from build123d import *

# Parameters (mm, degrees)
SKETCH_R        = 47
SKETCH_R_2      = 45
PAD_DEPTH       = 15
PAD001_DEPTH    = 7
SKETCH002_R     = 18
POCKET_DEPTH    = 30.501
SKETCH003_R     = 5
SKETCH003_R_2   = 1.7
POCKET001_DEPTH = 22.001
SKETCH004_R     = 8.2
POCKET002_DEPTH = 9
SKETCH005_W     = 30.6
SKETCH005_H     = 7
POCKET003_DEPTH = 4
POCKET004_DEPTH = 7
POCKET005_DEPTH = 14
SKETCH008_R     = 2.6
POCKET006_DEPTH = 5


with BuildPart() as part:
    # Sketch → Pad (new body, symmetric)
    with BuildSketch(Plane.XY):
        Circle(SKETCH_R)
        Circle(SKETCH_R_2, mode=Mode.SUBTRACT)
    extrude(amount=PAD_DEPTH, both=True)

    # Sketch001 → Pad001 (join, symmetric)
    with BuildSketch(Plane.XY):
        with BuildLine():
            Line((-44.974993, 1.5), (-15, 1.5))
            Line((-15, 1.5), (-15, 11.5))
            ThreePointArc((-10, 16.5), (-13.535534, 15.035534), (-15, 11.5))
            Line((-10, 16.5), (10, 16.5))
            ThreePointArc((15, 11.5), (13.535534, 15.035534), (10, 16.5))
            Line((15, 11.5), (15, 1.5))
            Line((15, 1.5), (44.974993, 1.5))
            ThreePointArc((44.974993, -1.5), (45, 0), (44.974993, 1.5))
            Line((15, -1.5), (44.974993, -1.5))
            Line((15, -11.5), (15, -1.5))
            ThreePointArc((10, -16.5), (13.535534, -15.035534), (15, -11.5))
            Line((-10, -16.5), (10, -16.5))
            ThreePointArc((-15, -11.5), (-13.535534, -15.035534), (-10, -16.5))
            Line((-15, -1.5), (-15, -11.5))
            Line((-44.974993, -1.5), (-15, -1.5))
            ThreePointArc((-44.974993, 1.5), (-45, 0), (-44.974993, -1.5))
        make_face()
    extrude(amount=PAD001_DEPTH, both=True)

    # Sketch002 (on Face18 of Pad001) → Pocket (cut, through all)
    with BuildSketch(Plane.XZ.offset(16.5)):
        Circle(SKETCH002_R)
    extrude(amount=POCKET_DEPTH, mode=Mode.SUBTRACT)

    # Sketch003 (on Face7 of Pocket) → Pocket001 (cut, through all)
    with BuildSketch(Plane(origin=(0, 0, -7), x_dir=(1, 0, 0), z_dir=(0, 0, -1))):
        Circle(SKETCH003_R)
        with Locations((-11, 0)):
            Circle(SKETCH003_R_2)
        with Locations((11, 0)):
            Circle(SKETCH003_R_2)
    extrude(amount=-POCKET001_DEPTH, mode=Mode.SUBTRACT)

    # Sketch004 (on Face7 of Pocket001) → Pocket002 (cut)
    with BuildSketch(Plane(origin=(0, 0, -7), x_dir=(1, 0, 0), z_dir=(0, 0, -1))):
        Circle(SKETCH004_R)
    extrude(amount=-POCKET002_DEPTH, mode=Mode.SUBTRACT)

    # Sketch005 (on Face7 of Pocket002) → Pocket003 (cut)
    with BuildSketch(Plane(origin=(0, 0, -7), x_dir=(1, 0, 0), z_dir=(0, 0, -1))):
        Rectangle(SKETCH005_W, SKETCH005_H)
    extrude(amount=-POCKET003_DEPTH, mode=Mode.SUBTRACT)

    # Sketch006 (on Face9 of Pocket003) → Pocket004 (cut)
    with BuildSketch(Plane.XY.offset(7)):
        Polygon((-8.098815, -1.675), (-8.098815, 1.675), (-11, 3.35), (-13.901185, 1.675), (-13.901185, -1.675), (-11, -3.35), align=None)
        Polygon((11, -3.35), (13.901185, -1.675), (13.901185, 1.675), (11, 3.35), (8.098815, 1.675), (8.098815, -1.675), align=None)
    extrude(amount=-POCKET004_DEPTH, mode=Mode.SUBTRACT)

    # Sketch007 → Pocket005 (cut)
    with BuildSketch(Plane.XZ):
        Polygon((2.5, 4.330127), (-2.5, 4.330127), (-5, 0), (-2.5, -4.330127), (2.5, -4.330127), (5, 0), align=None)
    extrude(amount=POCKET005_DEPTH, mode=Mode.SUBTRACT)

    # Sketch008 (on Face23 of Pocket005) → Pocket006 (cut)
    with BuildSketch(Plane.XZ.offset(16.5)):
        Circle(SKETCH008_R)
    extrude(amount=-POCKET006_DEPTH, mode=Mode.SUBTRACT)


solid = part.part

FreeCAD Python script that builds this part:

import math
import FreeCAD as App
import Part
import Sketcher
Q = App.Units.Quantity

doc = App.newDocument("Part")
params = doc.addObject("Spreadsheet::Sheet", "Params")
for row, (alias, value) in enumerate([
    ("sketch1_diameter", "94 mm"),
    ("sketch1_diameter2", "90 mm"),
    ("pad1_length", "30 mm"),
    ("sketch2_radius", "5 mm"),
    ("sketch2_width", "20 mm"),
    ("sketch2_height", "10 mm"),
    ("pad2_length", "14 mm"),
    ("sketch3_diameter", "36 mm"),
    ("sketch4_diameter", "10 mm"),
    ("sketch4_diameter2", "3.4 mm"),
    ("sketch5_diameter", "16.4 mm"),
    ("pocket3_length", "9 mm"),
    ("sketch6_height", "7 mm"),
    ("sketch6_width", "30.6 mm"),
    ("pocket4_length", "4 mm"),
    ("sketch7_height", "3.35 mm"),
    ("pocket5_length", "7 mm"),
    ("sketch8_width", "5 mm"),
    ("sketch8_length", "5 mm"),
    ("pocket6_length", "14 mm"),
    ("sketch9_diameter", "5.2 mm"),
    ("pocket7_length", "5 mm"),
], start=1):
    params.set(f"A{row}", alias)
    params.set(f"B{row}", "=" + value)
    params.setAlias(f"B{row}", alias)

body = doc.addObject("PartDesign::Body", "Body")

# Sketch on XY plane
sketch1 = body.newObject("Sketcher::SketchObject", "Sketch")
sketch1.AttachmentSupport = (doc.getObject("XY_Plane"), [""])
sketch1.MapMode = "FlatFace"
sketch1.addGeometry([
    Part.Circle(App.Vector(0, 0, 0), App.Vector(0, 0, 1), 47),
    Part.Circle(App.Vector(0, 0, 0), App.Vector(0, 0, 1), 45),
], False)
sketch1.addConstraint([
    Sketcher.Constraint("Coincident", 0, 3, -1, 1),
    Sketcher.Constraint("Coincident", 1, 3, -1, 1),
    Sketcher.Constraint("Diameter", 0, Q("94 mm")),
    Sketcher.Constraint("Diameter", 1, Q("90 mm")),
])
sketch1.setExpression("Constraints[2]", "Params.sketch1_diameter")
sketch1.setExpression("Constraints[3]", "Params.sketch1_diameter2")
pad1 = body.newObject("PartDesign::Pad", "Pad")
pad1.Profile = sketch1
pad1.setExpression("Length", "Params.pad1_length")
pad1.Midplane = True

# Sketch on XY plane
sketch2 = body.newObject("Sketcher::SketchObject", "Sketch001")
sketch2.AttachmentSupport = (doc.getObject("XY_Plane"), [""])
sketch2.MapMode = "FlatFace"
sketch2.addGeometry([
    Part.LineSegment(App.Vector(-15, 1.5, 0), App.Vector(-44.974993, 1.5, 0)),  # 0
    Part.ArcOfCircle(Part.Circle(App.Vector(-0.000093, 0, 0), App.Vector(0, 0, 1), 44.999907), math.radians(178.089783), math.radians(181.910217)),  # 1
    Part.LineSegment(App.Vector(-44.974993, -1.5, 0), App.Vector(-15, -1.5, 0)),  # 2
    Part.LineSegment(App.Vector(-15, -1.5, 0), App.Vector(-15, -11.5, 0)),  # 3
    Part.ArcOfCircle(Part.Circle(App.Vector(-10, -11.5, 0), App.Vector(0, 0, 1), 5), math.radians(179.999996), math.radians(270.000004)),  # 4
    Part.LineSegment(App.Vector(-10, -16.5, 0), App.Vector(10, -16.5, 0)),  # 5
    Part.ArcOfCircle(Part.Circle(App.Vector(10, -11.5, 0), App.Vector(0, 0, 1), 5), math.radians(-90.000004), math.radians(0.000004)),  # 6
    Part.LineSegment(App.Vector(15, -11.5, 0), App.Vector(15, -1.5, 0)),  # 7
    Part.LineSegment(App.Vector(15, -1.5, 0), App.Vector(44.974993, -1.5, 0)),  # 8
    Part.ArcOfCircle(Part.Circle(App.Vector(0.000093, 0, 0), App.Vector(0, 0, 1), 44.999907), math.radians(-1.910217), math.radians(1.910217)),  # 9
    Part.LineSegment(App.Vector(44.974993, 1.5, 0), App.Vector(15, 1.5, 0)),  # 10
    Part.LineSegment(App.Vector(15, 1.5, 0), App.Vector(15, 11.5, 0)),  # 11
    Part.ArcOfCircle(Part.Circle(App.Vector(10, 11.5, 0), App.Vector(0, 0, 1), 5), math.radians(-0.000004), math.radians(90.000004)),  # 12
    Part.LineSegment(App.Vector(10, 16.5, 0), App.Vector(-10, 16.5, 0)),  # 13
    Part.ArcOfCircle(Part.Circle(App.Vector(-10, 11.5, 0), App.Vector(0, 0, 1), 5), math.radians(89.999996), math.radians(180.000004)),  # 14
    Part.LineSegment(App.Vector(-15, 11.5, 0), App.Vector(-15, 1.5, 0)),  # 15
], False)
sketch2.addConstraint([
    Sketcher.Constraint("Coincident", 0, 2, 1, 1),
    Sketcher.Constraint("Coincident", 1, 2, 2, 1),
    Sketcher.Constraint("Coincident", 2, 2, 3, 1),
    Sketcher.Constraint("Tangent", 3, 2, 4, 1),
    Sketcher.Constraint("Tangent", 4, 2, 5, 1),
    Sketcher.Constraint("Tangent", 5, 2, 6, 1),
    Sketcher.Constraint("Tangent", 6, 2, 7, 1),
    Sketcher.Constraint("Coincident", 7, 2, 8, 1),
    Sketcher.Constraint("Coincident", 8, 2, 9, 1),
    Sketcher.Constraint("Coincident", 9, 2, 10, 1),
    Sketcher.Constraint("Coincident", 10, 2, 11, 1),
    Sketcher.Constraint("Tangent", 11, 2, 12, 1),
    Sketcher.Constraint("Tangent", 12, 2, 13, 1),
    Sketcher.Constraint("Tangent", 13, 2, 14, 1),
    Sketcher.Constraint("Tangent", 14, 2, 15, 1),
    Sketcher.Constraint("Coincident", 15, 2, 0, 1),
    Sketcher.Constraint("Horizontal", 0),
    Sketcher.Constraint("Horizontal", 2),
    Sketcher.Constraint("Vertical", 3),
    Sketcher.Constraint("Horizontal", 5),
    Sketcher.Constraint("Vertical", 7),
    Sketcher.Constraint("Horizontal", 8),
    Sketcher.Constraint("Horizontal", 10),
    Sketcher.Constraint("Vertical", 11),
    Sketcher.Constraint("Horizontal", 13),
    Sketcher.Constraint("Vertical", 15),
    Sketcher.Constraint("Equal", 4, 6),
    Sketcher.Constraint("Equal", 1, 9),
    Sketcher.Constraint("Equal", 6, 12),
    Sketcher.Constraint("Equal", 12, 14),
    Sketcher.Constraint("Symmetric", 1, 3, 9, 3, -1, 1),
    Sketcher.Constraint("Symmetric", 4, 3, 12, 3, -1, 1),
    Sketcher.Constraint("Symmetric", 7, 2, 15, 2, -1, 1),
    Sketcher.Constraint("Symmetric", 2, 2, 7, 2, -2),
    Sketcher.Constraint("Symmetric", 0, 2, 9, 2, -2),
    Sketcher.Constraint("Radius", 4, Q("5 mm")),
    Sketcher.Constraint("DistanceX", 5, 1, 5, 2, Q("20 mm")),
    Sketcher.Constraint("DistanceY", 3, 2, 3, 1, Q("10 mm")),
    Sketcher.Constraint("DistanceY", 6, 3, 12, 3, Q("23.000001 mm")),
    Sketcher.Constraint("Radius", 1, Q("44.999907 mm")),
    Sketcher.Constraint("DistanceX", 0, 2, 0, 1, Q("29.974993 mm")),
])
sketch2.setExpression("Constraints[35]", "Params.sketch2_radius")
sketch2.setExpression("Constraints[36]", "Params.sketch2_width")
sketch2.setExpression("Constraints[37]", "Params.sketch2_height")
pad2 = body.newObject("PartDesign::Pad", "Pad001")
pad2.Profile = sketch2
pad2.setExpression("Length", "Params.pad2_length")
pad2.Midplane = True

# Sketch on XZ plane
sketch3 = body.newObject("Sketcher::SketchObject", "Sketch002")
sketch3.AttachmentSupport = (doc.getObject("XZ_Plane"), [""])
sketch3.MapMode = "FlatFace"
sketch3.AttachmentOffset = App.Placement(App.Vector(0, 0, 16.5), App.Rotation())
sketch3.addGeometry(Part.Circle(App.Vector(0, 0, 0), App.Vector(0, 0, 1), 18), False)
sketch3.addConstraint([
    Sketcher.Constraint("Coincident", 0, 3, -1, 1),
    Sketcher.Constraint("Diameter", 0, Q("36 mm")),
])
sketch3.setExpression("Constraints[1]", "Params.sketch3_diameter")
pocket1 = body.newObject("PartDesign::Pocket", "Pocket")
pocket1.Profile = sketch3
pocket1.Type = "ThroughAll"
pocket1.Reversed = True

# Sketch on XY plane
sketch4 = body.newObject("Sketcher::SketchObject", "Sketch003")
sketch4.AttachmentSupport = (doc.getObject("XY_Plane"), [""])
sketch4.MapMode = "FlatFace"
sketch4.AttachmentOffset = App.Placement(App.Vector(0, 0, -7), App.Rotation())
sketch4.addGeometry([
    Part.Circle(App.Vector(0, 0, 0), App.Vector(0, 0, 1), 5),
    Part.Circle(App.Vector(-11, 0, 0), App.Vector(0, 0, 1), 1.7),
    Part.Circle(App.Vector(11, 0, 0), App.Vector(0, 0, 1), 1.7),
], False)
sketch4.addConstraint([
    Sketcher.Constraint("Coincident", 0, 3, -1, 1),
    Sketcher.Constraint("Equal", 1, 2),
    Sketcher.Constraint("Symmetric", 1, 3, 2, 3, -1, 1),
    Sketcher.Constraint("PointOnObject", 1, 3, -1),
    Sketcher.Constraint("Diameter", 0, Q("10 mm")),
    Sketcher.Constraint("Diameter", 1, Q("3.4 mm")),
    Sketcher.Constraint("DistanceX", 1, 3, -1, 1, Q("11 mm")),
])
sketch4.setExpression("Constraints[4]", "Params.sketch4_diameter")
sketch4.setExpression("Constraints[5]", "Params.sketch4_diameter2")
pocket2 = body.newObject("PartDesign::Pocket", "Pocket001")
pocket2.Profile = sketch4
pocket2.Type = "ThroughAll"
pocket2.Reversed = True

# Sketch on XY plane
sketch5 = body.newObject("Sketcher::SketchObject", "Sketch004")
sketch5.AttachmentSupport = (doc.getObject("XY_Plane"), [""])
sketch5.MapMode = "FlatFace"
sketch5.AttachmentOffset = App.Placement(App.Vector(0, 0, -7), App.Rotation())
sketch5.addGeometry(Part.Circle(App.Vector(0, 0, 0), App.Vector(0, 0, 1), 8), False)
sketch5.addConstraint([
    Sketcher.Constraint("Coincident", 0, 3, -1, 1),
    Sketcher.Constraint("Diameter", 0, Q("16.4 mm")),
])
sketch5.setExpression("Constraints[1]", "Params.sketch5_diameter")
pocket3 = body.newObject("PartDesign::Pocket", "Pocket002")
pocket3.Profile = sketch5
pocket3.setExpression("Length", "Params.pocket3_length")
pocket3.Reversed = True

# Sketch on XY plane
sketch6 = body.newObject("Sketcher::SketchObject", "Sketch005")
sketch6.AttachmentSupport = (doc.getObject("XY_Plane"), [""])
sketch6.MapMode = "FlatFace"
sketch6.AttachmentOffset = App.Placement(App.Vector(0, 0, -7), App.Rotation())
sketch6.addGeometry([
    Part.LineSegment(App.Vector(-15, -4, 0), App.Vector(-15, 4, 0)),
    Part.LineSegment(App.Vector(-15, 4, 0), App.Vector(15, 4, 0)),
    Part.LineSegment(App.Vector(15, 4, 0), App.Vector(15, -4, 0)),
    Part.LineSegment(App.Vector(15, -4, 0), App.Vector(-15, -4, 0)),
], False)
sketch6.addConstraint([
    Sketcher.Constraint("Coincident", 0, 2, 1, 1),
    Sketcher.Constraint("Coincident", 1, 2, 2, 1),
    Sketcher.Constraint("Coincident", 2, 2, 3, 1),
    Sketcher.Constraint("Coincident", 3, 2, 0, 1),
    Sketcher.Constraint("Vertical", 0),
    Sketcher.Constraint("Horizontal", 1),
    Sketcher.Constraint("Vertical", 2),
    Sketcher.Constraint("Horizontal", 3),
    Sketcher.Constraint("Symmetric", 0, 2, 2, 2, -1, 1),
    Sketcher.Constraint("DistanceY", 0, 1, 0, 2, Q("7 mm")),
    Sketcher.Constraint("DistanceX", 1, 1, 1, 2, Q("30.6 mm")),
])
sketch6.setExpression("Constraints[9]", "Params.sketch6_height")
sketch6.setExpression("Constraints[10]", "Params.sketch6_width")
pocket4 = body.newObject("PartDesign::Pocket", "Pocket003")
pocket4.Profile = sketch6
pocket4.setExpression("Length", "Params.pocket4_length")
pocket4.Reversed = True

# Sketch on XY plane
sketch7 = body.newObject("Sketcher::SketchObject", "Sketch006")
sketch7.AttachmentSupport = (doc.getObject("XY_Plane"), [""])
sketch7.MapMode = "FlatFace"
sketch7.AttachmentOffset = App.Placement(App.Vector(0, 0, 7), App.Rotation())
sketch7.addGeometry([
    Part.LineSegment(App.Vector(-8.1, -1.7, 0), App.Vector(-8.1, 1.7, 0)),  # 0
    Part.LineSegment(App.Vector(-8.1, 1.7, 0), App.Vector(-11, 3.4, 0)),  # 1
    Part.LineSegment(App.Vector(-11, 3.4, 0), App.Vector(-13.9, 1.7, 0)),  # 2
    Part.LineSegment(App.Vector(-13.9, 1.7, 0), App.Vector(-13.9, -1.7, 0)),  # 3
    Part.LineSegment(App.Vector(-13.9, -1.7, 0), App.Vector(-11, -3.4, 0)),  # 4
    Part.LineSegment(App.Vector(-11, -3.4, 0), App.Vector(-8.1, -1.7, 0)),  # 5
    Part.LineSegment(App.Vector(11, -3.4, 0), App.Vector(13.9, -1.7, 0)),  # 6
    Part.LineSegment(App.Vector(13.9, -1.7, 0), App.Vector(13.9, 1.7, 0)),  # 7
    Part.LineSegment(App.Vector(13.9, 1.7, 0), App.Vector(11, 3.4, 0)),  # 8
    Part.LineSegment(App.Vector(11, 3.4, 0), App.Vector(8.1, 1.7, 0)),  # 9
    Part.LineSegment(App.Vector(8.1, 1.7, 0), App.Vector(8.1, -1.7, 0)),  # 10
    Part.LineSegment(App.Vector(8.1, -1.7, 0), App.Vector(11, -3.4, 0)),  # 11
], False)
sketch7.addConstraint([
    Sketcher.Constraint("Coincident", 0, 2, 1, 1),
    Sketcher.Constraint("Coincident", 1, 2, 2, 1),
    Sketcher.Constraint("Coincident", 2, 2, 3, 1),
    Sketcher.Constraint("Coincident", 3, 2, 4, 1),
    Sketcher.Constraint("Coincident", 4, 2, 5, 1),
    Sketcher.Constraint("Coincident", 5, 2, 0, 1),
    Sketcher.Constraint("Coincident", 6, 2, 7, 1),
    Sketcher.Constraint("Coincident", 7, 2, 8, 1),
    Sketcher.Constraint("Coincident", 8, 2, 9, 1),
    Sketcher.Constraint("Coincident", 9, 2, 10, 1),
    Sketcher.Constraint("Coincident", 10, 2, 11, 1),
    Sketcher.Constraint("Coincident", 11, 2, 6, 1),
    Sketcher.Constraint("Vertical", 0),
    Sketcher.Constraint("Vertical", 3),
    Sketcher.Constraint("Vertical", 7),
    Sketcher.Constraint("Vertical", 10),
    Sketcher.Constraint("Symmetric", 2, 2, 6, 2, -1, 1),
    Sketcher.Constraint("Symmetric", 4, 2, 8, 2, -1, 1),
    Sketcher.Constraint("Symmetric", 5, 2, 9, 2, -1, 1),
    Sketcher.Constraint("Symmetric", 1, 2, 11, 2, -1, 1),
    Sketcher.Constraint("Symmetric", 1, 2, 8, 2, -2),
    Sketcher.Constraint("Parallel", 1, 4),
    Sketcher.Constraint("Parallel", 2, 5),
    Sketcher.Constraint("Parallel", 4, 8),
    Sketcher.Constraint("Parallel", 8, 11),
    Sketcher.Constraint("Horizontal", 0, 2, 2, 2),
    Sketcher.Constraint("Horizontal", 3, 2, 5, 2),
    Sketcher.Constraint("Angle", 1, Q("149.999999 deg")),
    Sketcher.Constraint("DistanceX", 1, 2, -1, 1, Q("11 mm")),
    Sketcher.Constraint("DistanceY", 0, 1, 0, 2, Q("3.35 mm")),
    Sketcher.Constraint("DistanceY", 4, 2, 1, 2, Q("6.7 mm")),
])
sketch7.setExpression("Constraints[29]", "Params.sketch7_height")
pocket5 = body.newObject("PartDesign::Pocket", "Pocket004")
pocket5.Profile = sketch7
pocket5.setExpression("Length", "Params.pocket5_length")

# Sketch on XZ plane
sketch8 = body.newObject("Sketcher::SketchObject", "Sketch007")
sketch8.AttachmentSupport = (doc.getObject("XZ_Plane"), [""])
sketch8.MapMode = "FlatFace"
sketch8.addGeometry([
    Part.LineSegment(App.Vector(2.5, 4.3, 0), App.Vector(-2.5, 4.3, 0)),  # 0
    Part.LineSegment(App.Vector(-2.5, 4.3, 0), App.Vector(-5, 0, 0)),  # 1
    Part.LineSegment(App.Vector(-5, 0, 0), App.Vector(-2.5, -4.3, 0)),  # 2
    Part.LineSegment(App.Vector(-2.5, -4.3, 0), App.Vector(2.5, -4.3, 0)),  # 3
    Part.LineSegment(App.Vector(2.5, -4.3, 0), App.Vector(5, 0, 0)),  # 4
    Part.LineSegment(App.Vector(5, 0, 0), App.Vector(2.5, 4.3, 0)),  # 5
], False)
sketch8.addConstraint([
    Sketcher.Constraint("Coincident", 0, 2, 1, 1),
    Sketcher.Constraint("Coincident", 1, 2, 2, 1),
    Sketcher.Constraint("Coincident", 2, 2, 3, 1),
    Sketcher.Constraint("Coincident", 3, 2, 4, 1),
    Sketcher.Constraint("Coincident", 4, 2, 5, 1),
    Sketcher.Constraint("Coincident", 5, 2, 0, 1),
    Sketcher.Constraint("Horizontal", 0),
    Sketcher.Constraint("Horizontal", 3),
    Sketcher.Constraint("Symmetric", 0, 2, 3, 2, -1, 1),
    Sketcher.Constraint("Symmetric", 1, 2, 4, 2, -1, 1),
    Sketcher.Constraint("PointOnObject", 1, 2, -1),
    Sketcher.Constraint("Parallel", 2, 5),
    Sketcher.Constraint("Vertical", 0, 2, 2, 2),
    Sketcher.Constraint("DistanceX", 0, 2, 0, 1, Q("5 mm")),
    Sketcher.Constraint("Angle", 1, Q("-120 deg")),
    Sketcher.Constraint("Distance", 1, Q("5 mm")),
])
sketch8.setExpression("Constraints[13]", "Params.sketch8_width")
sketch8.setExpression("Constraints[15]", "Params.sketch8_length")
pocket6 = body.newObject("PartDesign::Pocket", "Pocket005")
pocket6.Profile = sketch8
pocket6.setExpression("Length", "Params.pocket6_length")
pocket6.Reversed = True

# Sketch on XZ plane
sketch9 = body.newObject("Sketcher::SketchObject", "Sketch008")
sketch9.AttachmentSupport = (doc.getObject("XZ_Plane"), [""])
sketch9.MapMode = "FlatFace"
sketch9.AttachmentOffset = App.Placement(App.Vector(0, 0, 16.5), App.Rotation())
sketch9.addGeometry(Part.Circle(App.Vector(0, 0, 0), App.Vector(0, 0, 1), 2.6), False)
sketch9.addConstraint([
    Sketcher.Constraint("Coincident", 0, 3, -1, 1),
    Sketcher.Constraint("Diameter", 0, Q("5.2 mm")),
])
sketch9.setExpression("Constraints[1]", "Params.sketch9_diameter")
pocket7 = body.newObject("PartDesign::Pocket", "Pocket006")
pocket7.Profile = sketch9
pocket7.setExpression("Length", "Params.pocket7_length")

doc.recompute()
